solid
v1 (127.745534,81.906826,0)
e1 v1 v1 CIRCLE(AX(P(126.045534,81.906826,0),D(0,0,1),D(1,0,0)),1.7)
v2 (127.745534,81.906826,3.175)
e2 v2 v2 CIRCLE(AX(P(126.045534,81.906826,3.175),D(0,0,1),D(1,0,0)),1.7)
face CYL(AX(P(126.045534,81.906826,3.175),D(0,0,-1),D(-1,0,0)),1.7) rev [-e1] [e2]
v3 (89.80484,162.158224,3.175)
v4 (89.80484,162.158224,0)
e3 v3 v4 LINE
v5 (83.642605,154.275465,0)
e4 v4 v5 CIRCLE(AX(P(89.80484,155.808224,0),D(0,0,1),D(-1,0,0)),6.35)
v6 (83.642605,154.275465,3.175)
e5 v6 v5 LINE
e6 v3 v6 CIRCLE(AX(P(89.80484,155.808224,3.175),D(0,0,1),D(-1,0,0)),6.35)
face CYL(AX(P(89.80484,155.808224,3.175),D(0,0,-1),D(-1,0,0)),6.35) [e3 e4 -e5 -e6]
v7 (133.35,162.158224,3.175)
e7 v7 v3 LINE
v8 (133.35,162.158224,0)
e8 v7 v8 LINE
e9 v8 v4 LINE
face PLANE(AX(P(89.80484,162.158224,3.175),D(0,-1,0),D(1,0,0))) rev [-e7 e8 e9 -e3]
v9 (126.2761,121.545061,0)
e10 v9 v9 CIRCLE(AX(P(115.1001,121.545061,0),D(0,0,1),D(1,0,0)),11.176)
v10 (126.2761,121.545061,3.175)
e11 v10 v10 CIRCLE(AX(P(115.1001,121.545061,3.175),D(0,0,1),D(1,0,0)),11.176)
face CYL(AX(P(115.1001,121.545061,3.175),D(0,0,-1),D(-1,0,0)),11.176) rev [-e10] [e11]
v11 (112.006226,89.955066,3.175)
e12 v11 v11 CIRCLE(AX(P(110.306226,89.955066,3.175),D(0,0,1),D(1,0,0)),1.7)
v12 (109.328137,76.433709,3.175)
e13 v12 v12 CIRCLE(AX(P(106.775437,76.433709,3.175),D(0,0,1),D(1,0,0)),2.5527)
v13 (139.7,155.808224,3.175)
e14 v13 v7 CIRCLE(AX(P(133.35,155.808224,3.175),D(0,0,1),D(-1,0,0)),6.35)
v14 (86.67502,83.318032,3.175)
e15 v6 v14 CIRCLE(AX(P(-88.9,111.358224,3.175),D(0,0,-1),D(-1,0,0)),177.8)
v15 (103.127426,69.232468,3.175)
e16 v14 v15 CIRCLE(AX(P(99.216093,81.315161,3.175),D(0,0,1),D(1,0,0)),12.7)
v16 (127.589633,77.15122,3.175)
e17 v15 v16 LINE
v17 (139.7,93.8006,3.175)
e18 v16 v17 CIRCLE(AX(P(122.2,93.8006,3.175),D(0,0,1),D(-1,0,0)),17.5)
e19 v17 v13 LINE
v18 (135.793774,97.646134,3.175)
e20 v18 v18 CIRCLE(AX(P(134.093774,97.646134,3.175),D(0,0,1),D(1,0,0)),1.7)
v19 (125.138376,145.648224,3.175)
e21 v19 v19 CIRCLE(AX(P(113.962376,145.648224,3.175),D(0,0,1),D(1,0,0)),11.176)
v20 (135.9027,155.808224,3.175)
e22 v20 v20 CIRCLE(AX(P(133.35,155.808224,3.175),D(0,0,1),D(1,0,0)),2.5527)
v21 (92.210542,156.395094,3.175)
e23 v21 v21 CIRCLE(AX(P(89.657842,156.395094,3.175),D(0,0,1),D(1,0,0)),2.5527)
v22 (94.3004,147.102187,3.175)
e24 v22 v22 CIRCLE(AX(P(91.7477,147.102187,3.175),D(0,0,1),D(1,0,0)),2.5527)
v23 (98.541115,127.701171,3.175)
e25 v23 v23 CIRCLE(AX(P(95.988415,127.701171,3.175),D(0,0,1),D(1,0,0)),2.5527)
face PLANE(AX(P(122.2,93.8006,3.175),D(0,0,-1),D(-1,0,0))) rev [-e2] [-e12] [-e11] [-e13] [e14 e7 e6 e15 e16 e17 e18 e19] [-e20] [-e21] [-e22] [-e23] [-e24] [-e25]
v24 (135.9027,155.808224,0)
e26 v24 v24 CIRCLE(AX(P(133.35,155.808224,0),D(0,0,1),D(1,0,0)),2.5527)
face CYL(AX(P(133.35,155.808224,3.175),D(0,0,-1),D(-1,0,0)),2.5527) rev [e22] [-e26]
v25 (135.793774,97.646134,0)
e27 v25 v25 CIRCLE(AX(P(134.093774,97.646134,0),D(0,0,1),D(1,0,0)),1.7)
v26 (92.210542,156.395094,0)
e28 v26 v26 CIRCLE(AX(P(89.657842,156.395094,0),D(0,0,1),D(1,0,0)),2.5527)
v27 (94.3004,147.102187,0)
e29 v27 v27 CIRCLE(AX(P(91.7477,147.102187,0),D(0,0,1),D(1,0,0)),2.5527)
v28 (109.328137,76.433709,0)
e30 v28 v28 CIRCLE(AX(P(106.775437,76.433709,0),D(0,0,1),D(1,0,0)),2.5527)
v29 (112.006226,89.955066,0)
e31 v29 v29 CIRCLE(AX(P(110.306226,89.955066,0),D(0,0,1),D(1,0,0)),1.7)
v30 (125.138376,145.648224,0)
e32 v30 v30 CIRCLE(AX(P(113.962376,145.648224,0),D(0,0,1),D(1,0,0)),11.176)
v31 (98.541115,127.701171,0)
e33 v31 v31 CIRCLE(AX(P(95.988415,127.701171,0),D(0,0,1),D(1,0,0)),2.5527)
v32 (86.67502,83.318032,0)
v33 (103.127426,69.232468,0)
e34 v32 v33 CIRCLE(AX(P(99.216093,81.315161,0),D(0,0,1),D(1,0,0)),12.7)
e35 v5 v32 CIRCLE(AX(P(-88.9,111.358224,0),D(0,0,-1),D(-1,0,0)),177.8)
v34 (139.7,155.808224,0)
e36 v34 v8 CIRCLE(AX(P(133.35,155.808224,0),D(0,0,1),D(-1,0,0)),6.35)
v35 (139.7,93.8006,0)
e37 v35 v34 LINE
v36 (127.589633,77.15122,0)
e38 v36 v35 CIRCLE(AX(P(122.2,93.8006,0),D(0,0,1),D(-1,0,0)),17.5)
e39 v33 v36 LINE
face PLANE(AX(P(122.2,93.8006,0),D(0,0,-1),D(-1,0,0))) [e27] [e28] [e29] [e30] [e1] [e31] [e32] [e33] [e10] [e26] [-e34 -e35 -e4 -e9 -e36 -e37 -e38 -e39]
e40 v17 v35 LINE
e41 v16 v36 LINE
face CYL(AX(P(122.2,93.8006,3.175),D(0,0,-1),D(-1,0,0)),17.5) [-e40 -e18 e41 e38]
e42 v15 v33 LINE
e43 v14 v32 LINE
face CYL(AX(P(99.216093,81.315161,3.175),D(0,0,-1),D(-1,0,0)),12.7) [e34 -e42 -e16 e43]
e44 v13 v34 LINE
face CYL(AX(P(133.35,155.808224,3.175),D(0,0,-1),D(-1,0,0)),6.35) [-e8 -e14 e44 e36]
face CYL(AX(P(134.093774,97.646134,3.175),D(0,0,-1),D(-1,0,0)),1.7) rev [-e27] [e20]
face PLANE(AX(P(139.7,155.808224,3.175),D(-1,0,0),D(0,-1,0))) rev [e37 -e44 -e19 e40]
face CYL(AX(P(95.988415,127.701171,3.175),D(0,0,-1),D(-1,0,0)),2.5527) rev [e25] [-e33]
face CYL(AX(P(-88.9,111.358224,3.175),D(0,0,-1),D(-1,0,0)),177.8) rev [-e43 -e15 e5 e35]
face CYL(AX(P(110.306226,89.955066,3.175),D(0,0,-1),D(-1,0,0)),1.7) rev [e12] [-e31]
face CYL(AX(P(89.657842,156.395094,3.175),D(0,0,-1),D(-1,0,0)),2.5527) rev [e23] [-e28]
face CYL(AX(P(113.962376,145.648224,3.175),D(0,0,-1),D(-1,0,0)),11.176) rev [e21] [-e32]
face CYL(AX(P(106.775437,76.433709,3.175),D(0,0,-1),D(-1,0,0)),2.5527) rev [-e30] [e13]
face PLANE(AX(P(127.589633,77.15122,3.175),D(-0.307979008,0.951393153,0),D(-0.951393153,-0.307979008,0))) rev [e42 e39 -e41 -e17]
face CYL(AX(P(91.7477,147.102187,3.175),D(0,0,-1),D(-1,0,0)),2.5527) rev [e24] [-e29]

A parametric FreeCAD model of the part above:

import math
import FreeCAD as App
import Part
import Sketcher
Q = App.Units.Quantity

doc = App.newDocument("Part")
params = doc.addObject("Spreadsheet::Sheet", "Params")
for row, (alias, value) in enumerate([
    ("sketch1_radius", "7 in"),
    ("sketch1_radius2", "0.5 in"),
    ("sketch1_diameter", "0.88 in"),
    ("sketch1_radius3", "0.25 in"),
    ("sketch1_diameter2", "0.201 in"),
    ("pad1_length", "0.125 in"),
], start=1):
    params.set(f"A{row}", alias)
    params.set(f"B{row}", "=" + value)
    params.setAlias(f"B{row}", alias)

body = doc.addObject("PartDesign::Body", "Body")

sketch1 = body.newObject("Sketcher::SketchObject", "Sketch")
sketch1.AttachmentSupport = (doc.getObject("XY_Plane"), [""])
sketch1.MapMode = "FlatFace"
sketch1.addGeometry(Part.LineSegment(App.Vector(133.35, 162.158224, 0), App.Vector(89.80484, 162.158224, 0)), False)
sketch1.addGeometry(Part.ArcOfCircle(Part.Circle(App.Vector(89.80484, 155.808224, 0), App.Vector(0, 0, 1), 6.35), math.radians(90), math.radians(193.967963)), False)
sketch1.addGeometry(Part.ArcOfCircle(Part.Circle(App.Vector(-88.9, 111.358224, 0), App.Vector(0, 0, 1), 177.8), math.radians(-9.073791), math.radians(13.967963)), False)
sketch1.addGeometry(Part.ArcOfCircle(Part.Circle(App.Vector(99.216093, 81.315161, 0), App.Vector(0, 0, 1), 12.7), math.radians(170.926209), math.radians(287.937478)), False)
sketch1.addGeometry(Part.LineSegment(App.Vector(103.127426, 69.232468, 0), App.Vector(127.589633, 77.15122, 0)), False)
sketch1.addGeometry(Part.ArcOfCircle(Part.Circle(App.Vector(122.2, 93.8006, 0), App.Vector(0, 0, 1), 17.5), math.radians(-72.062522), math.radians(0)), False)
sketch1.addGeometry(Part.LineSegment(App.Vector(139.7, 93.8006, 0), App.Vector(139.7, 155.808224, 0)), False)
sketch1.addGeometry(Part.ArcOfCircle(Part.Circle(App.Vector(133.35, 155.808224, 0), App.Vector(0, 0, 1), 6.35), math.radians(0), math.radians(90)), False)
sketch1.addGeometry(Part.Circle(App.Vector(126.045534, 81.906826, 0), App.Vector(0, 0, 1), 1.7), False)
sketch1.addGeometry(Part.Circle(App.Vector(134.093774, 97.646134, 0), App.Vector(0, 0, 1), 1.7), False)
sketch1.addGeometry(Part.Circle(App.Vector(106.775437, 76.433709, 0), App.Vector(0, 0, 1), 2.5527), False)
sketch1.addGeometry(Part.Circle(App.Vector(110.306226, 89.955066, 0), App.Vector(0, 0, 1), 1.7), False)
sketch1.addGeometry(Part.Circle(App.Vector(115.1001, 121.545061, 0), App.Vector(0, 0, 1), 11.176), False)
sketch1.addGeometry(Part.Circle(App.Vector(133.35, 155.808224, 0), App.Vector(0, 0, 1), 2.5527), False)
sketch1.addGeometry(Part.Circle(App.Vector(113.962376, 145.648224, 0), App.Vector(0, 0, 1), 11.176), False)
sketch1.addGeometry(Part.Circle(App.Vector(95.988415, 127.701171, 0), App.Vector(0, 0, 1), 2.5527), False)
sketch1.addGeometry(Part.Circle(App.Vector(91.7477, 147.102187, 0), App.Vector(0, 0, 1), 2.5527), False)
sketch1.addGeometry(Part.Circle(App.Vector(89.657842, 156.395094, 0), App.Vector(0, 0, 1), 2.5527), False)
sketch1.addConstraint(Sketcher.Constraint("Tangent", 0, 2, 1, 1))
sketch1.addConstraint(Sketcher.Constraint("Tangent", 1, 2, 2, 2))
sketch1.addConstraint(Sketcher.Constraint("Tangent", 2, 1, 3, 1))
sketch1.addConstraint(Sketcher.Constraint("Tangent", 3, 2, 4, 1))
sketch1.addConstraint(Sketcher.Constraint("Tangent", 4, 2, 5, 1))
sketch1.addConstraint(Sketcher.Constraint("Tangent", 5, 2, 6, 1))
sketch1.addConstraint(Sketcher.Constraint("Tangent", 6, 2, 7, 1))
sketch1.addConstraint(Sketcher.Constraint("Tangent", 7, 2, 0, 1))
sketch1.addConstraint(Sketcher.Constraint("Horizontal", 0))
sketch1.addConstraint(Sketcher.Constraint("Vertical", 6))
sketch1.addConstraint(Sketcher.Constraint("Coincident", 13, 3, 7, 3))
sketch1.addConstraint(Sketcher.Constraint("Equal", 1, 7))
sketch1.addConstraint(Sketcher.Constraint("Equal", 8, 9))
sketch1.addConstraint(Sketcher.Constraint("Equal", 9, 11))
sketch1.addConstraint(Sketcher.Constraint("Equal", 10, 13))
sketch1.addConstraint(Sketcher.Constraint("Equal", 12, 14))
sketch1.addConstraint(Sketcher.Constraint("Equal", 13, 15))
sketch1.addConstraint(Sketcher.Constraint("Equal", 15, 16))
sketch1.addConstraint(Sketcher.Constraint("Equal", 16, 17))
sketch1.addConstraint(Sketcher.Constraint("Radius", 2, Q("7 in")))
sketch1.addConstraint(Sketcher.Constraint("Radius", 3, Q("0.5 in")))
sketch1.addConstraint(Sketcher.Constraint("Diameter", 12, Q("0.88 in")))
sketch1.addConstraint(Sketcher.Constraint("Radius", 1, Q("0.25 in")))
sketch1.addConstraint(Sketcher.Constraint("Diameter", 10, Q("0.201 in")))
sketch1.addConstraint(Sketcher.Constraint("DistanceX", 2, 3, -1, 1, Q("3.5 in")))
sketch1.addConstraint(Sketcher.Constraint("DistanceX", -1, 1, 5, 2, Q("5.5 in")))
sketch1.addConstraint(Sketcher.Constraint("DistanceY", 14, 3, 13, 3, Q("0.4 in")))
sketch1.addConstraint(Sketcher.Constraint("Diameter", 8, Q("3.4 mm")))
sketch1.addConstraint(Sketcher.Constraint("Radius", 5, Q("17.5 mm")))
sketch1.addConstraint(Sketcher.Constraint("DistanceY", 2, 3, 1, 3, Q("1.75 in")))
sketch1.addConstraint(Sketcher.Constraint("DistanceX", -1, 1, 12, 3, Q("4.5315 in")))
sketch1.addConstraint(Sketcher.Constraint("DistanceY", -1, 1, 5, 3, Q("93.8006 mm")))
sketch1.addConstraint(Sketcher.Constraint("DistanceX", -1, 1, 16, 3, Q("91.7477 mm")))
sketch1.addConstraint(Sketcher.Constraint("DistanceY", 8, 3, 7, 3, Q("73.901398 mm")))
sketch1.addConstraint(Sketcher.Constraint("DistanceX", 14, 3, 9, 3, Q("20.131398 mm")))
sketch1.addConstraint(Sketcher.Constraint("DistanceX", 17, 3, 1, 3, Q("0.146999 mm")))
sketch1.addConstraint(Sketcher.Constraint("DistanceX", 3, 2, 11, 3, Q("7.1788 mm")))
sketch1.addConstraint(Sketcher.Constraint("DistanceX", 8, 3, 4, 2, Q("1.544098 mm")))
sketch1.addConstraint(Sketcher.Constraint("DistanceY", 6, 1, 6, 2, Q("62.007624 mm")))
sketch1.addConstraint(Sketcher.Constraint("DistanceY", -1, 1, 3, 3, Q("81.315161 mm")))
sketch1.addConstraint(Sketcher.Constraint("DistanceY", -1, 1, 10, 3, Q("76.433709 mm")))
sketch1.addConstraint(Sketcher.Constraint("DistanceY", -1, 1, 12, 3, Q("121.545061 mm")))
sketch1.addConstraint(Sketcher.Constraint("DistanceY", -1, 1, 15, 3, Q("127.701171 mm")))
sketch1.addConstraint(Sketcher.Constraint("DistanceX", 8, 3, 9, 3, Q("8.04824 mm")))
sketch1.addConstraint(Sketcher.Constraint("DistanceY", 8, 3, 9, 3, Q("15.739309 mm")))
sketch1.addConstraint(Sketcher.Constraint("DistanceX", 10, 3, 11, 3, Q("3.530788 mm")))
sketch1.addConstraint(Sketcher.Constraint("DistanceY", 8, 3, 11, 3, Q("8.04824 mm")))
sketch1.addConstraint(Sketcher.Constraint("DistanceX", 15, 3, 14, 3, Q("17.973961 mm")))
sketch1.addConstraint(Sketcher.Constraint("DistanceY", 1, 3, 17, 3, Q("0.58687 mm")))
sketch1.addConstraint(Sketcher.Constraint("DistanceY", 16, 3, 1, 2, Q("7.173278 mm")))
sketch1.setExpression("Constraints[19]", "Params.sketch1_radius")
sketch1.setExpression("Constraints[20]", "Params.sketch1_radius2")
sketch1.setExpression("Constraints[21]", "Params.sketch1_diameter")
sketch1.setExpression("Constraints[22]", "Params.sketch1_radius3")
sketch1.setExpression("Constraints[23]", "Params.sketch1_diameter2")
pad1 = body.newObject("PartDesign::Pad", "Pad")
pad1.Profile = sketch1
pad1.setExpression("Length", "Params.pad1_length")

doc.recompute()
